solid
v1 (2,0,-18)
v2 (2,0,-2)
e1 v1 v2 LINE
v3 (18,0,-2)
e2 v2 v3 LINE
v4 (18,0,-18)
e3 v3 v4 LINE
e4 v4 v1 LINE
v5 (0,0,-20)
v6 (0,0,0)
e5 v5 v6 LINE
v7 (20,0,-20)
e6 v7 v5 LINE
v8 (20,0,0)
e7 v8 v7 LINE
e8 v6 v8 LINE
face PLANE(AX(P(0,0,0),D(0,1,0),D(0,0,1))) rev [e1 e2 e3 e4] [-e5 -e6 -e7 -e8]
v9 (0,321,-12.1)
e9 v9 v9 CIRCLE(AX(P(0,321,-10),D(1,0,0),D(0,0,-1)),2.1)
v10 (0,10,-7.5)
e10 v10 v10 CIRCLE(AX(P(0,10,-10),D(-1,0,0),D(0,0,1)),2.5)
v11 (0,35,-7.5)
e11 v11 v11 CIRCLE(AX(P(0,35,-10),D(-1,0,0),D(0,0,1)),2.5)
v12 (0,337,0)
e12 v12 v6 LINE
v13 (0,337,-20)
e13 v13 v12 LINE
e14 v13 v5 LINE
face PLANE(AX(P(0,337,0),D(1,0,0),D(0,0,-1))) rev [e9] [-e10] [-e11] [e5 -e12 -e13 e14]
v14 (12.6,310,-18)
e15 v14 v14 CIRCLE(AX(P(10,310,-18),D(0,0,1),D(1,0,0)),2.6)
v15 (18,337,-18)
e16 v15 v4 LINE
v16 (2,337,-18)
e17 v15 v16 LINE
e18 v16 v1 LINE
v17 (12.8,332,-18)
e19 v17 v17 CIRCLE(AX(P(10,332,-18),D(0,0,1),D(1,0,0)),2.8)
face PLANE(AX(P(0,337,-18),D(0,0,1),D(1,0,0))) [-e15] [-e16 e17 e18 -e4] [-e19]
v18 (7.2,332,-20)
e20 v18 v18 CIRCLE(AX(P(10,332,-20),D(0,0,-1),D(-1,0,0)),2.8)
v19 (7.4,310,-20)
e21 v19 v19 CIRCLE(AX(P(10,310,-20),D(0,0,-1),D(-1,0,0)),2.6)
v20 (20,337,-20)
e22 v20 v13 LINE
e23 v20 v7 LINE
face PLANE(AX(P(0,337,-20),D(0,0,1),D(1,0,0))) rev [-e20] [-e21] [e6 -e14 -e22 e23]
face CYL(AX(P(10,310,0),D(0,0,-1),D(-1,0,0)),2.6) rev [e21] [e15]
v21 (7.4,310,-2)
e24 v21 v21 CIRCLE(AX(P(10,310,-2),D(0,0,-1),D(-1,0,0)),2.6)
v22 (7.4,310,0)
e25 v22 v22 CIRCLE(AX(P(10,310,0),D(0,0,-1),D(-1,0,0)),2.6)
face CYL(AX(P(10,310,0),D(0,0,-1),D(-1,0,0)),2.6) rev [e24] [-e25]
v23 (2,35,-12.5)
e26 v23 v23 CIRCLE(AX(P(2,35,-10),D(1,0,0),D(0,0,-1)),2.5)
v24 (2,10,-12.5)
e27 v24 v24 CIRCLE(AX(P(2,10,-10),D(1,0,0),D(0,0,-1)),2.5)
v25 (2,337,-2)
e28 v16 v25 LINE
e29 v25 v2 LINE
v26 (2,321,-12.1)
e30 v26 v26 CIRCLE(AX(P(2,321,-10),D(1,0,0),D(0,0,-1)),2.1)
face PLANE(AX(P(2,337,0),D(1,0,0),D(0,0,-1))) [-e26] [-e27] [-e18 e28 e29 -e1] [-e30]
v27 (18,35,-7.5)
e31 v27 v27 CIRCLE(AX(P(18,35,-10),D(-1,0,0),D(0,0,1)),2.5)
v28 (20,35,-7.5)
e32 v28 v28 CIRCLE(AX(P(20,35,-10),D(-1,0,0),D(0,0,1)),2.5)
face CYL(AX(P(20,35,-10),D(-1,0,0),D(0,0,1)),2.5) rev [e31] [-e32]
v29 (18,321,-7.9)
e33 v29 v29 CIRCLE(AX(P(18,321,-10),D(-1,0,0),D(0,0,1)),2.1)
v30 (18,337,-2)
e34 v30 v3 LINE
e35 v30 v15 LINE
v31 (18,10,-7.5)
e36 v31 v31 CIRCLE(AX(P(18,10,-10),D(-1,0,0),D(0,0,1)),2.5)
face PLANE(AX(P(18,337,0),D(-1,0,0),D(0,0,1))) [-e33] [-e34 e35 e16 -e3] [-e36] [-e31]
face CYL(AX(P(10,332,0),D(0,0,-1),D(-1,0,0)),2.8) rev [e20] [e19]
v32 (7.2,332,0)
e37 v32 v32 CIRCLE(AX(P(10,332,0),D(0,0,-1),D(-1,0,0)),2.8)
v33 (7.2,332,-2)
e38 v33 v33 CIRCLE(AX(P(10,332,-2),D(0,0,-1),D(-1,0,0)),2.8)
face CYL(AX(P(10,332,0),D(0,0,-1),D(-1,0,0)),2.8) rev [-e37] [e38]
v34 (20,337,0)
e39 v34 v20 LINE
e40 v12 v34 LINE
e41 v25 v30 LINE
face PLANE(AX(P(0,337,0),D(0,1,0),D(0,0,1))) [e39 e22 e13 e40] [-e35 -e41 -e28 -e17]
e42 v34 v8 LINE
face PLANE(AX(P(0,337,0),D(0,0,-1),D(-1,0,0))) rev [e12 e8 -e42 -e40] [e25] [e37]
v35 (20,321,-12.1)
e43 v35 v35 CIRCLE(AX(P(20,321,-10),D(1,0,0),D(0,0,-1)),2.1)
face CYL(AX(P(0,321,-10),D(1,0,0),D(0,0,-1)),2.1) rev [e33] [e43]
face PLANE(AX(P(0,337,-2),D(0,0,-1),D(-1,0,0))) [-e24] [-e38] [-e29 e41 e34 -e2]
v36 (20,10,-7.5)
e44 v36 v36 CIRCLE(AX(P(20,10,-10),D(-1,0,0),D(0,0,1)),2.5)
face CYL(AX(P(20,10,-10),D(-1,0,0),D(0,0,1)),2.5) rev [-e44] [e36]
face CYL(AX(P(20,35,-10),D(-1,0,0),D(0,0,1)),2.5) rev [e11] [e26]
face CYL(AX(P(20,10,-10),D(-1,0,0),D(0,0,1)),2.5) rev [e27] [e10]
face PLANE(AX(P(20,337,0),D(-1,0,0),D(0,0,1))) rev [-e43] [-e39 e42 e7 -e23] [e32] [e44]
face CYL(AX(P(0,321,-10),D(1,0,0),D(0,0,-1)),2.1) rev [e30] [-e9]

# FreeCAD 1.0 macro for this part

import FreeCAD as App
import Part
import Sketcher
from FreeCAD import Vector

doc = App.newDocument("Part")
body = doc.addObject("PartDesign::Body", "Body")

sketch1 = doc.addObject("Sketcher::SketchObject", "Sketch")
body.addObject(sketch1)
sketch1.AttachmentSupport = (doc.XZ_Plane, [""])
sketch1.MapMode = "FlatFace"
sketch1.addGeometry([
    Part.LineSegment(Vector(0, -20, 0), Vector(0, 0, 0)),
    Part.LineSegment(Vector(0, 0, 0), Vector(20, 0, 0)),
    Part.LineSegment(Vector(20, 0, 0), Vector(20, -20, 0)),
    Part.LineSegment(Vector(20, -20, 0), Vector(0, -20, 0)),
    Part.LineSegment(Vector(18, -2, 0), Vector(2, -2, 0)),
    Part.LineSegment(Vector(2, -2, 0), Vector(2, -18, 0)),
    Part.LineSegment(Vector(2, -18, 0), Vector(18, -18, 0)),
    Part.LineSegment(Vector(18, -18, 0), Vector(18, -2, 0)),
], False)
sketch1.addConstraint([
    Sketcher.Constraint("Coincident", 0, 2, 1, 1),
    Sketcher.Constraint("Coincident", 1, 2, 2, 1),
    Sketcher.Constraint("Coincident", 2, 2, 3, 1),
    Sketcher.Constraint("Coincident", 3, 2, 0, 1),
    Sketcher.Constraint("Coincident", 4, 2, 5, 1),
    Sketcher.Constraint("Coincident", 5, 2, 6, 1),
    Sketcher.Constraint("Coincident", 6, 2, 7, 1),
    Sketcher.Constraint("Coincident", 7, 2, 4, 1),
    Sketcher.Constraint("Vertical", 0),
    Sketcher.Constraint("Horizontal", 1),
    Sketcher.Constraint("Vertical", 2),
    Sketcher.Constraint("Horizontal", 3),
    Sketcher.Constraint("Horizontal", 4),
    Sketcher.Constraint("Vertical", 5),
    Sketcher.Constraint("Horizontal", 6),
    Sketcher.Constraint("Vertical", 7),
    Sketcher.Constraint("Coincident", 0, 2, -1, 1),
    Sketcher.Constraint("Equal", 3, 0),
    Sketcher.Constraint("Equal", 6, 5),
    Sketcher.Constraint("DistanceX", 1, 1, 1, 2, 20.0),
    Sketcher.Constraint("DistanceX", 4, 2, 4, 1, 16.0),
    Sketcher.Constraint("DistanceX", -1, 1, 4, 2, 2.0),
    Sketcher.Constraint("DistanceY", 4, 2, -1, 1, 2.0),
])
pad1 = doc.addObject("PartDesign::Pad", "Pad")
body.addObject(pad1)
pad1.Profile = sketch1
pad1.Length = 337
pad1.Reversed = True

sketch2 = doc.addObject("Sketcher::SketchObject", "Sketch001")
body.addObject(sketch2)
sketch2.AttachmentSupport = (doc.YZ_Plane, [""])
sketch2.MapMode = "FlatFace"
sketch2.addGeometry([
    Part.Circle(Vector(35, -10, 0), Vector(0, 0, 1), 2.5),
    Part.Circle(Vector(10, -10, 0), Vector(0, 0, 1), 2.5),
], False)
sketch2.addConstraint([
    Sketcher.Constraint("Equal", 0, 1),
    Sketcher.Constraint("Horizontal", 0, 3, 1, 3),
    Sketcher.Constraint("Diameter", 0, 5.0),
    Sketcher.Constraint("DistanceX", -1, 1, 0, 3, 35.0),
    Sketcher.Constraint("DistanceY", 0, 3, -1, 1, 10.0),
    Sketcher.Constraint("DistanceX", -1, 1, 1, 3, 10.0),
])
pocket1 = doc.addObject("PartDesign::Pocket", "Pocket")
body.addObject(pocket1)
pocket1.Profile = sketch2
pocket1.Type = "ThroughAll"
pocket1.Reversed = True

sketch3 = doc.addObject("Sketcher::SketchObject", "Sketch002")
body.addObject(sketch3)
sketch3.AttachmentSupport = (doc.XY_Plane, [""])
sketch3.MapMode = "FlatFace"
sketch3.AttachmentOffset = App.Placement(Vector(0, 0, -20), App.Rotation())
sketch3.addGeometry([
    Part.Circle(Vector(10, 310, 0), Vector(0, 0, 1), 2.6),
    Part.Circle(Vector(10, 332, 0), Vector(0, 0, 1), 2.8),
], False)
sketch3.addConstraint([
    Sketcher.Constraint("Vertical", 0, 3, 1, 3),
    Sketcher.Constraint("Diameter", 0, 5.2),
    Sketcher.Constraint("Diameter", 1, 5.6),
    Sketcher.Constraint("DistanceX", -1, 1, 0, 3, 10.0),
    Sketcher.Constraint("DistanceY", -1, 1, 0, 3, 310.0),
    Sketcher.Constraint("DistanceY", -1, 1, 1, 3, 332.0),
])
pocket2 = doc.addObject("PartDesign::Pocket", "Pocket001")
body.addObject(pocket2)
pocket2.Profile = sketch3
pocket2.Type = "ThroughAll"
pocket2.Reversed = True

sketch4 = doc.addObject("Sketcher::SketchObject", "Sketch003")
body.addObject(sketch4)
sketch4.AttachmentSupport = (doc.YZ_Plane, [""])
sketch4.MapMode = "FlatFace"
sketch4.AttachmentOffset = App.Placement(Vector(0, 0, 20), App.Rotation())
sketch4.addGeometry(Part.Circle(Vector(321, -10, 0), Vector(0, 0, 1), 2.1), False)
sketch4.addConstraint([
    Sketcher.Constraint("Diameter", 0, 4.2),
    Sketcher.Constraint("DistanceX", -1, 1, 0, 3, 321.0),
    Sketcher.Constraint("DistanceY", 0, 3, -1, 1, 10.0),
])
pocket3 = doc.addObject("PartDesign::Pocket", "Pocket002")
body.addObject(pocket3)
pocket3.Profile = sketch4
pocket3.Type = "ThroughAll"

doc.recompute()
